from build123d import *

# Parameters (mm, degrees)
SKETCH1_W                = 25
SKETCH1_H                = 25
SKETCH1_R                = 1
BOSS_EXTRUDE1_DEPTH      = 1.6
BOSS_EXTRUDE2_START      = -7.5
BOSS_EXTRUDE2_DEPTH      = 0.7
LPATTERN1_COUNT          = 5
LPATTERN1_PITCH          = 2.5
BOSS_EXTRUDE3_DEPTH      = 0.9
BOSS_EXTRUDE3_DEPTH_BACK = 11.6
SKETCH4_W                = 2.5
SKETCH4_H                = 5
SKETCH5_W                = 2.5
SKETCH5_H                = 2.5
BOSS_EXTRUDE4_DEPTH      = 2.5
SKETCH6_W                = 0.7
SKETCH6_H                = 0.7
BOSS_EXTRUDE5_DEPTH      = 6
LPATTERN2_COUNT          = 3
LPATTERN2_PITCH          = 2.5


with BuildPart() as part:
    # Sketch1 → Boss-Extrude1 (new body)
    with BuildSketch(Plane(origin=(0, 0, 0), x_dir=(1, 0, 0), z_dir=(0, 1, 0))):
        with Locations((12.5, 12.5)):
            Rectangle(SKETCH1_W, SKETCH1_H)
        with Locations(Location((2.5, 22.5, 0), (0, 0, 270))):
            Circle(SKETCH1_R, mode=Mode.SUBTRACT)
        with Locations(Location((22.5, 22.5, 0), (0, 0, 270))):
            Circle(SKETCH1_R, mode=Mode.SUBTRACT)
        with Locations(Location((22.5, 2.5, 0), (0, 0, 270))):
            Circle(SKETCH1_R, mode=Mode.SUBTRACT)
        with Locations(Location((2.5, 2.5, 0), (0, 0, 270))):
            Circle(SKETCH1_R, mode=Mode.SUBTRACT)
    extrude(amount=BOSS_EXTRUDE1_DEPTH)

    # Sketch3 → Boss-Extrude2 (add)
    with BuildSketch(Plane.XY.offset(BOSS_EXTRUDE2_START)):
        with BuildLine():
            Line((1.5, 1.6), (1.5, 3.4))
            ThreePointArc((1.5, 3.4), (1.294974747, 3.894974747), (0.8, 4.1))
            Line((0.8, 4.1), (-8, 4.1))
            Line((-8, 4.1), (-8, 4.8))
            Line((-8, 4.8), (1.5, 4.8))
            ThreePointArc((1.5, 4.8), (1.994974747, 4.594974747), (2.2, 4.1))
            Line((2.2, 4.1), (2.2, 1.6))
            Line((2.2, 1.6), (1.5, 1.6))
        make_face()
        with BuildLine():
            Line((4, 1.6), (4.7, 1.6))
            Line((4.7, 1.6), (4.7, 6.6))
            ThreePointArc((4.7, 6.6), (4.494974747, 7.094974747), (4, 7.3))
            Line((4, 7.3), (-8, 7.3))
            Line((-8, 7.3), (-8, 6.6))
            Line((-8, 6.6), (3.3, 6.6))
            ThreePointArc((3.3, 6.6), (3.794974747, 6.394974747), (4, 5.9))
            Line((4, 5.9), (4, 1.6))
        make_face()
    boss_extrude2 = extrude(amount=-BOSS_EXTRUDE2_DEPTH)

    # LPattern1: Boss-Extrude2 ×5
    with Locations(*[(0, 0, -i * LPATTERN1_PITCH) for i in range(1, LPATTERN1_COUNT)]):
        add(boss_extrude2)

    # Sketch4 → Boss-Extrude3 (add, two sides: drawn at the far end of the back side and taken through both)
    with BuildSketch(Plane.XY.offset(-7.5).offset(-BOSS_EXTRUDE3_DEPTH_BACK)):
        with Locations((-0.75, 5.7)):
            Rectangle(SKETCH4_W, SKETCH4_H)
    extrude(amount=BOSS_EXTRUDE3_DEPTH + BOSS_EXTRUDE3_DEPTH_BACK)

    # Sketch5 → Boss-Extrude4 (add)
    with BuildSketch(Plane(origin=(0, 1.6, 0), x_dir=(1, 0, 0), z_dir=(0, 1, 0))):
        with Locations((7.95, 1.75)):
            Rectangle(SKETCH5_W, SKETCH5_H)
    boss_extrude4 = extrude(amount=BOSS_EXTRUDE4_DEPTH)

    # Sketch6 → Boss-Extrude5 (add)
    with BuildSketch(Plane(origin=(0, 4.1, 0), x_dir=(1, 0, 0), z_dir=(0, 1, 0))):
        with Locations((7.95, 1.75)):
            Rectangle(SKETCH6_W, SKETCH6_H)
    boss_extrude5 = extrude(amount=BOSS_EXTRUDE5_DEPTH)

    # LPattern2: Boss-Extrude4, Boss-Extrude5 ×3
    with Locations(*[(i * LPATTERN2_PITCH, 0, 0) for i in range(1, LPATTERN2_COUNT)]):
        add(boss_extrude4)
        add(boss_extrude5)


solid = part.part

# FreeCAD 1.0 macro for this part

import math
import FreeCAD as App
import Part
import Sketcher
Q = App.Units.Quantity


def add_polygon(sketch, points):
    """Adds a closed chain of lines whose ends are joined by coincident constraints."""
    first, n = sketch.GeometryCount, len(points)
    for a, b in zip(points, points[1:] + points[:1]):
        sketch.addGeometry(Part.LineSegment(App.Vector(*a, 0), App.Vector(*b, 0)), False)
    for i in range(n):
        sketch.addConstraint(Sketcher.Constraint("Coincident", first + i, 2, first + (i + 1) % n, 1))

doc = App.newDocument("Part")
body = doc.addObject("PartDesign::Body", "Body")

sketch1 = body.newObject("Sketcher::SketchObject", "Sketch")
sketch1.AttachmentSupport = (doc.getObject("XZ_Plane"), [""])
sketch1.MapMode = "FlatFace"
add_polygon(sketch1, [(0, -25), (0, 0), (25, 0), (25, -25)])
sketch1.addGeometry(Part.Circle(App.Vector(2.5, -2.5, 0), App.Vector(0, 0, 1), 1), False)
sketch1.addGeometry(Part.Circle(App.Vector(22.5, -2.5, 0), App.Vector(0, 0, 1), 1), False)
sketch1.addGeometry(Part.Circle(App.Vector(2.5, -22.5, 0), App.Vector(0, 0, 1), 1), False)
sketch1.addGeometry(Part.Circle(App.Vector(22.5, -22.5, 0), App.Vector(0, 0, 1), 1), False)
sketch1.addConstraint([
    Sketcher.Constraint("Vertical", 0),
    Sketcher.Constraint("Horizontal", 1),
    Sketcher.Constraint("Vertical", 2),
    Sketcher.Constraint("Horizontal", 3),
    Sketcher.Constraint("Coincident", 0, 2, -1, 1),
    Sketcher.Constraint("Equal", 4, 5),
    Sketcher.Constraint("Equal", 5, 6),
    Sketcher.Constraint("Equal", 6, 7),
    Sketcher.Constraint("Horizontal", 4, 3, 5, 3),
    Sketcher.Constraint("Horizontal", 6, 3, 7, 3),
    Sketcher.Constraint("Vertical", 4, 3, 6, 3),
    Sketcher.Constraint("Vertical", 5, 3, 7, 3),
    Sketcher.Constraint("Equal", 3, 0),
    Sketcher.Constraint("Diameter", 4, Q("2 mm")),
    Sketcher.Constraint("DistanceX", 1, 1, 1, 2, Q("25 mm")),
    Sketcher.Constraint("DistanceX", 4, 3, 5, 3, Q("20 mm")),
    Sketcher.Constraint("DistanceY", 6, 3, 4, 3, Q("20 mm")),
    Sketcher.Constraint("DistanceX", -1, 1, 4, 3, Q("2.5 mm")),
    Sketcher.Constraint("DistanceY", 4, 3, -1, 1, Q("2.5 mm")),
])
pad1 = body.newObject("PartDesign::Pad", "Pad")
pad1.Profile = sketch1
pad1.Length = 1.6
pad1.Reversed = True

sketch2 = body.newObject("Sketcher::SketchObject", "Sketch001")
sketch2.AttachmentSupport = (doc.getObject("XY_Plane"), [""])
sketch2.MapMode = "FlatFace"
sketch2.AttachmentOffset = App.Placement(App.Vector(0, 0, -7.5), App.Rotation())
sketch2.addGeometry([
    Part.LineSegment(App.Vector(1.5, 3.4, 0), App.Vector(1.5, 1.6, 0)),
    Part.LineSegment(App.Vector(1.5, 1.6, 0), App.Vector(2.2, 1.6, 0)),
    Part.LineSegment(App.Vector(2.2, 1.6, 0), App.Vector(2.2, 4.1, 0)),
    Part.ArcOfCircle(Part.Circle(App.Vector(1.5, 4.1, 0), App.Vector(0, 0, 1), 0.7), math.radians(0), math.radians(90)),
    Part.LineSegment(App.Vector(1.5, 4.8, 0), App.Vector(-8, 4.8, 0)),
    Part.LineSegment(App.Vector(-8, 4.8, 0), App.Vector(-8, 4.1, 0)),
    Part.LineSegment(App.Vector(-8, 4.1, 0), App.Vector(0.8, 4.1, 0)),
    Part.ArcOfCircle(Part.Circle(App.Vector(0.8, 3.4, 0), App.Vector(0, 0, 1), 0.7), math.radians(0), math.radians(90)),
    Part.LineSegment(App.Vector(4, 1.6, 0), App.Vector(4.7, 1.6, 0)),
    Part.LineSegment(App.Vector(4.7, 1.6, 0), App.Vector(4.7, 6.6, 0)),
    Part.ArcOfCircle(Part.Circle(App.Vector(4, 6.6, 0), App.Vector(0, 0, 1), 0.7), math.radians(0), math.radians(90)),
    Part.LineSegment(App.Vector(4, 7.3, 0), App.Vector(-8, 7.3, 0)),
    Part.LineSegment(App.Vector(-8, 7.3, 0), App.Vector(-8, 6.6, 0)),
    Part.LineSegment(App.Vector(-8, 6.6, 0), App.Vector(3.3, 6.6, 0)),
    Part.ArcOfCircle(Part.Circle(App.Vector(3.3, 5.9, 0), App.Vector(0, 0, 1), 0.7), math.radians(0), math.radians(90)),
    Part.LineSegment(App.Vector(4, 5.9, 0), App.Vector(4, 1.6, 0)),
], False)
sketch2.addConstraint([
    Sketcher.Constraint("Coincident", 0, 2, 1, 1),
    Sketcher.Constraint("Coincident", 1, 2, 2, 1),
    Sketcher.Constraint("Tangent", 2, 2, 3, 1),
    Sketcher.Constraint("Tangent", 3, 2, 4, 1),
    Sketcher.Constraint("Coincident", 4, 2, 5, 1),
    Sketcher.Constraint("Coincident", 5, 2, 6, 1),
    Sketcher.Constraint("Tangent", 6, 2, 7, 2),
    Sketcher.Constraint("Tangent", 7, 1, 0, 1),
    Sketcher.Constraint("Coincident", 8, 2, 9, 1),
    Sketcher.Constraint("Tangent", 9, 2, 10, 1),
    Sketcher.Constraint("Tangent", 10, 2, 11, 1),
    Sketcher.Constraint("Coincident", 11, 2, 12, 1),
    Sketcher.Constraint("Coincident", 12, 2, 13, 1),
    Sketcher.Constraint("Tangent", 13, 2, 14, 2),
    Sketcher.Constraint("Tangent", 14, 1, 15, 1),
    Sketcher.Constraint("Coincident", 15, 2, 8, 1),
    Sketcher.Constraint("Vertical", 0),
    Sketcher.Constraint("Horizontal", 1),
    Sketcher.Constraint("Vertical", 2),
    Sketcher.Constraint("Horizontal", 4),
    Sketcher.Constraint("Vertical", 5),
    Sketcher.Constraint("Horizontal", 6),
    Sketcher.Constraint("Horizontal", 8),
    Sketcher.Constraint("Vertical", 9),
    Sketcher.Constraint("Horizontal", 11),
    Sketcher.Constraint("Vertical", 12),
    Sketcher.Constraint("Horizontal", 13),
    Sketcher.Constraint("Vertical", 15),
    Sketcher.Constraint("Equal", 3, 7),
    Sketcher.Constraint("Equal", 7, 10),
    Sketcher.Constraint("Equal", 10, 14),
    Sketcher.Constraint("Horizontal", 2, 2, 5, 2),
    Sketcher.Constraint("Horizontal", 1, 2, 8, 2),
    Sketcher.Constraint("Horizontal", 9, 2, 12, 2),
    Sketcher.Constraint("Vertical", 3, 3, 0, 2),
    Sketcher.Constraint("Vertical", 5, 2, 11, 2),
    Sketcher.Constraint("Vertical", 10, 2, 14, 1),
    Sketcher.Constraint("Radius", 3, Q("0.7 mm")),
    Sketcher.Constraint("DistanceX", 11, 2, 11, 1, Q("12 mm")),
    Sketcher.Constraint("DistanceY", 9, 1, 9, 2, Q("5 mm")),
    Sketcher.Constraint("DistanceX", 4, 2, 4, 1, Q("9.5 mm")),
    Sketcher.Constraint("DistanceY", 0, 2, 0, 1, Q("1.8 mm")),
    Sketcher.Constraint("DistanceX", -1, 1, 10, 3, Q("4 mm")),
    Sketcher.Constraint("DistanceY", -1, 1, 3, 3, Q("4.1 mm")),
])
pad2 = body.newObject("PartDesign::Pad", "Pad001")
pad2.Profile = sketch2
pad2.Length = 0.7
pad2.Reversed = True
doc.recompute()

linearpattern = body.newObject("PartDesign::LinearPattern", "LinearPattern")
linearpattern.Originals = [pad2]
linearpattern.Direction = (doc.getObject("Z_Axis"), [""])
linearpattern.Mode = "offset"
linearpattern.Offset = 2.5
linearpattern.Occurrences = 5
linearpattern.Reversed = True
body.Tip = linearpattern

sketch3 = body.newObject("Sketcher::SketchObject", "Sketch002")
sketch3.AttachmentSupport = (doc.getObject("XY_Plane"), [""])
sketch3.MapMode = "FlatFace"
sketch3.AttachmentOffset = App.Placement(App.Vector(0, 0, -7.5), App.Rotation())
add_polygon(sketch3, [(-2, 8.2), (-2, 3.2), (0.5, 3.2), (0.5, 8.2)])
sketch3.addConstraint([
    Sketcher.Constraint("Vertical", 0),
    Sketcher.Constraint("Horizontal", 1),
    Sketcher.Constraint("Vertical", 2),
    Sketcher.Constraint("Horizontal", 3),
    Sketcher.Constraint("DistanceY", 0, 2, 0, 1, Q("5 mm")),
    Sketcher.Constraint("DistanceX", 1, 1, 1, 2, Q("2.5 mm")),
    Sketcher.Constraint("DistanceX", 0, 2, -1, 1, Q("2 mm")),
    Sketcher.Constraint("DistanceY", -1, 1, 0, 2, Q("3.2 mm")),
])
pad3 = body.newObject("PartDesign::Pad", "Pad002")
pad3.Profile = sketch3
pad3.Type = "TwoLengths"
pad3.Length = 0.9
pad3.Length2 = 11.6

sketch4 = body.newObject("Sketcher::SketchObject", "Sketch003")
sketch4.AttachmentSupport = (doc.getObject("XZ_Plane"), [""])
sketch4.MapMode = "FlatFace"
sketch4.AttachmentOffset = App.Placement(App.Vector(0, 0, -1.6), App.Rotation())
add_polygon(sketch4, [(6.7, -3), (6.7, -0.5), (9.2, -0.5), (9.2, -3)])
sketch4.addConstraint([
    Sketcher.Constraint("Vertical", 0),
    Sketcher.Constraint("Horizontal", 1),
    Sketcher.Constraint("Vertical", 2),
    Sketcher.Constraint("Horizontal", 3),
    Sketcher.Constraint("Equal", 3, 0),
    Sketcher.Constraint("DistanceX", 1, 1, 1, 2, Q("2.5 mm")),
    Sketcher.Constraint("DistanceY", 2, 2, -1, 1, Q("3 mm")),
    Sketcher.Constraint("DistanceX", -1, 1, 0, 2, Q("6.7 mm")),
])
pad4 = body.newObject("PartDesign::Pad", "Pad003")
pad4.Profile = sketch4
pad4.Length = 2.5
pad4.Reversed = True

sketch5 = body.newObject("Sketcher::SketchObject", "Sketch004")
sketch5.AttachmentSupport = (doc.getObject("XZ_Plane"), [""])
sketch5.MapMode = "FlatFace"
sketch5.AttachmentOffset = App.Placement(App.Vector(0, 0, -4.1), App.Rotation())
add_polygon(sketch5, [(7.6, -2.1), (7.6, -1.4), (8.3, -1.4), (8.3, -2.1)])
sketch5.addConstraint([
    Sketcher.Constraint("Vertical", 0),
    Sketcher.Constraint("Horizontal", 1),
    Sketcher.Constraint("Vertical", 2),
    Sketcher.Constraint("Horizontal", 3),
    Sketcher.Constraint("Equal", 3, 0),
    Sketcher.Constraint("DistanceX", 1, 1, 1, 2, Q("0.7 mm")),
    Sketcher.Constraint("DistanceX", -1, 1, 0, 2, Q("7.6 mm")),
    Sketcher.Constraint("DistanceY", 0, 2, -1, 1, Q("1.4 mm")),
])
pad5 = body.newObject("PartDesign::Pad", "Pad004")
pad5.Profile = sketch5
pad5.Length = 6
pad5.Reversed = True
doc.recompute()

linearpattern2 = body.newObject("PartDesign::LinearPattern", "LinearPattern001")
linearpattern2.Originals = [pad4, pad5]
linearpattern2.Direction = (doc.getObject("X_Axis"), [""])
linearpattern2.Mode = "offset"
linearpattern2.Offset = 2.5
linearpattern2.Occurrences = 3
body.Tip = linearpattern2

doc.recompute()
